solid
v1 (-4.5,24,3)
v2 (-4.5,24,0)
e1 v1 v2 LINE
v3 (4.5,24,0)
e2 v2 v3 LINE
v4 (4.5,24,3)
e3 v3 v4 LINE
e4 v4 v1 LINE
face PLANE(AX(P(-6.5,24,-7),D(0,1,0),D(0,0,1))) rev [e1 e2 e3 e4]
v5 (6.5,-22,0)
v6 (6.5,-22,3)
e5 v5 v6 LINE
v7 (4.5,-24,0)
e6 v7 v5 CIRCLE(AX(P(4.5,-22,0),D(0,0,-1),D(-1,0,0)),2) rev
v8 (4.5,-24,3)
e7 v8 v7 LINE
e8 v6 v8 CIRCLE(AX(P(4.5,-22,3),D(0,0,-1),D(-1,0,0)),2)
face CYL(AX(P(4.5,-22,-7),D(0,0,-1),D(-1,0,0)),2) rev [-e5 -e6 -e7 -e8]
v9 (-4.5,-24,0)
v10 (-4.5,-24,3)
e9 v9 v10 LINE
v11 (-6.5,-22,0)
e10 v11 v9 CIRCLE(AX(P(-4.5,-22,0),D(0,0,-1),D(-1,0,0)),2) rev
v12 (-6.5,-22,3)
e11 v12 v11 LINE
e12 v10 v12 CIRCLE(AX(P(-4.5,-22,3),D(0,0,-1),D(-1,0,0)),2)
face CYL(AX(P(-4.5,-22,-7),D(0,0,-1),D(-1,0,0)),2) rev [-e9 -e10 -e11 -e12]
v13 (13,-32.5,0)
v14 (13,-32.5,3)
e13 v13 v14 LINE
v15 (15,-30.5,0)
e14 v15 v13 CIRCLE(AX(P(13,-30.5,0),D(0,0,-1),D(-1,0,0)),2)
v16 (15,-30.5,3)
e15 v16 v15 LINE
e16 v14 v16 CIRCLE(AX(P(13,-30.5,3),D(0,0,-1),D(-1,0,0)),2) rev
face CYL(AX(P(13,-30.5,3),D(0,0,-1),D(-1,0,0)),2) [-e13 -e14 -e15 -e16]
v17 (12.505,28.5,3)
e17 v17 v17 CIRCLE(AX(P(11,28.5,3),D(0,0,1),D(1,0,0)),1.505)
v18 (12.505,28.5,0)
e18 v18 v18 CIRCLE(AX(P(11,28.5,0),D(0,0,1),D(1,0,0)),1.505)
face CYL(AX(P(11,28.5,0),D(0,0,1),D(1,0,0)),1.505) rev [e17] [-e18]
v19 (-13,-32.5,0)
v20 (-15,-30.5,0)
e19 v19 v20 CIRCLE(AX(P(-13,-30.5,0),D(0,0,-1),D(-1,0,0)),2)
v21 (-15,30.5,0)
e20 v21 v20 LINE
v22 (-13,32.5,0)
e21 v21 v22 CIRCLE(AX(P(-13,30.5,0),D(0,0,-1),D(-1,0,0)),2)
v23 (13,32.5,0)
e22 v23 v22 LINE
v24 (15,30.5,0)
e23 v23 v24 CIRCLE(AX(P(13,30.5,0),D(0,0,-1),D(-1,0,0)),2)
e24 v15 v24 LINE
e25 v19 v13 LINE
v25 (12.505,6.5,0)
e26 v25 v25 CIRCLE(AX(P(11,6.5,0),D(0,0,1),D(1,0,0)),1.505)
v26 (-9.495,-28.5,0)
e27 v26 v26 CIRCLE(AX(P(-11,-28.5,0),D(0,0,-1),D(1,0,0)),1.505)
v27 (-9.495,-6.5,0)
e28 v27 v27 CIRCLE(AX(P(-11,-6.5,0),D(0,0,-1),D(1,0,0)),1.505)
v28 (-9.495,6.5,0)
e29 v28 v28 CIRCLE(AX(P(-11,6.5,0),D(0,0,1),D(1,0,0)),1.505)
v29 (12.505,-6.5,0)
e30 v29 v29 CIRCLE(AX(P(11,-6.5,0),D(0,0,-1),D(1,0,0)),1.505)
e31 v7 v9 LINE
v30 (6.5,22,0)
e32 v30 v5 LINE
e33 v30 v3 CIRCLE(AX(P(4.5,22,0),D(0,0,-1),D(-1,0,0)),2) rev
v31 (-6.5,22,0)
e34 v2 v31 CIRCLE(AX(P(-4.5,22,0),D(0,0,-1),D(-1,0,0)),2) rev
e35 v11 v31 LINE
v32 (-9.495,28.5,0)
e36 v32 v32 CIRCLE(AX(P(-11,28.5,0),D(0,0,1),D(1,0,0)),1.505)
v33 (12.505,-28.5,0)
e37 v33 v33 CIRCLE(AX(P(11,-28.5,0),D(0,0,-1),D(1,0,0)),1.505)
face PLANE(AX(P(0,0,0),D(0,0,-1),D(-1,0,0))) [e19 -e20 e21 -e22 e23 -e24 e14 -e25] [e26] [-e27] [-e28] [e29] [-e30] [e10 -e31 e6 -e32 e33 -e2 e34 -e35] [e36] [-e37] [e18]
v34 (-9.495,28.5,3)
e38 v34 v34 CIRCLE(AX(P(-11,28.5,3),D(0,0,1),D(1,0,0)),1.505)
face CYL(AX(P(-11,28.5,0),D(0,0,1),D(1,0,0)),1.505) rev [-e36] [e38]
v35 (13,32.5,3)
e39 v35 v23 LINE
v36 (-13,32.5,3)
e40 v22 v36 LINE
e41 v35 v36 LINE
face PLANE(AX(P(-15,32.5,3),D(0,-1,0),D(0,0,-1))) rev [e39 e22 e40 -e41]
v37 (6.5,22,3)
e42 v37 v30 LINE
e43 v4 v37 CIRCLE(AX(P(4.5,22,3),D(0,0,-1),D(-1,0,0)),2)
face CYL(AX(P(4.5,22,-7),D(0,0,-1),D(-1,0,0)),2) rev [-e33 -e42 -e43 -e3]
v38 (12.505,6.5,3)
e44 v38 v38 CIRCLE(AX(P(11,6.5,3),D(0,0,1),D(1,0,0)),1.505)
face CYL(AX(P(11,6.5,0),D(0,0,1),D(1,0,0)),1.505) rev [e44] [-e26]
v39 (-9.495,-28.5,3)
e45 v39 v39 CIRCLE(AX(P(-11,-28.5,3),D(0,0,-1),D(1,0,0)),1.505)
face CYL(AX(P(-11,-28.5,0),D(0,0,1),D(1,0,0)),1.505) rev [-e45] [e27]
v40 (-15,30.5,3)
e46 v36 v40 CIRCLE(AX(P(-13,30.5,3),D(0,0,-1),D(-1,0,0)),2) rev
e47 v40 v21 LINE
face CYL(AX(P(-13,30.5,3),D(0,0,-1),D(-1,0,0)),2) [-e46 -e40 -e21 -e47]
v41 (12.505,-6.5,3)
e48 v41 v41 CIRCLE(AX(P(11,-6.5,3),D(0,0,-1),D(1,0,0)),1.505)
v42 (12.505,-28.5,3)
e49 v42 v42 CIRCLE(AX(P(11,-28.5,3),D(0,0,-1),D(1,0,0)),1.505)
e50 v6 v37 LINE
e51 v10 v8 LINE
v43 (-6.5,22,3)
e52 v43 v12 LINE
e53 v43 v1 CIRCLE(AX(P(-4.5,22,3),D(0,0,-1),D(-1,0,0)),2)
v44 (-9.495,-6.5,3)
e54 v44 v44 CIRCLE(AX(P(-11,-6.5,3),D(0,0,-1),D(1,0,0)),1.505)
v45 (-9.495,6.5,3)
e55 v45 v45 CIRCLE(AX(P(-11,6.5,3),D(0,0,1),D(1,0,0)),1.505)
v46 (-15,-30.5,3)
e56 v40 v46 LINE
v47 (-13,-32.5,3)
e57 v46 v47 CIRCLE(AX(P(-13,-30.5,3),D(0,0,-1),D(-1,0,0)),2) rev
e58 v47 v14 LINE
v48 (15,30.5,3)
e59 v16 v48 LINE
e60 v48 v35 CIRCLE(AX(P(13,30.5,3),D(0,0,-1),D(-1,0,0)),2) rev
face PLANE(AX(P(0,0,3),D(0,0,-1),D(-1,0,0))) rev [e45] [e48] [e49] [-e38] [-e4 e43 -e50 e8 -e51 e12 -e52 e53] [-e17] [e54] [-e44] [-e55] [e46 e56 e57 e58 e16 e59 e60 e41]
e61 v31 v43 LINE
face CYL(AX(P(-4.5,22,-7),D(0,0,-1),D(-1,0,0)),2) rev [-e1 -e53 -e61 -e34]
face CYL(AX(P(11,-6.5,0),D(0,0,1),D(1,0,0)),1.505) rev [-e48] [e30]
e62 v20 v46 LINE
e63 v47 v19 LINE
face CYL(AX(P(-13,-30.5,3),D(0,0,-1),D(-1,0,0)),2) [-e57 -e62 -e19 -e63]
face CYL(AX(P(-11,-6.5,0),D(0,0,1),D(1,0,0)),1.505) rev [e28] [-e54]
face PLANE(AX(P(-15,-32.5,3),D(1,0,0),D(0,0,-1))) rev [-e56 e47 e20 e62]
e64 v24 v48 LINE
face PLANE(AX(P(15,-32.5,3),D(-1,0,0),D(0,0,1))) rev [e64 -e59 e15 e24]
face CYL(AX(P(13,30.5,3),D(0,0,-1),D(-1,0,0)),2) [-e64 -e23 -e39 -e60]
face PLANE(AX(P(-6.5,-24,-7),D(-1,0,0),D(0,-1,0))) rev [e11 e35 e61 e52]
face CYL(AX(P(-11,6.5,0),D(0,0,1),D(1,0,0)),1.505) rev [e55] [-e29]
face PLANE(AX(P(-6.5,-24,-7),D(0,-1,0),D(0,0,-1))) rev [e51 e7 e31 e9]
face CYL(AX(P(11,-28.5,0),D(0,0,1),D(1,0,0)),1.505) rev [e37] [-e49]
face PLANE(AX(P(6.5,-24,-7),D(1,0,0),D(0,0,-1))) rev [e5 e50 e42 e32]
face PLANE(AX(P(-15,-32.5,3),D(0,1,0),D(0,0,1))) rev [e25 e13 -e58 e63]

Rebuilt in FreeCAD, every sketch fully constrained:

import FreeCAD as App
import Part
import Sketcher

V = App.Vector


def edges_at(feature, points):
    """Names of the edges that pass closest to the given points."""
    edges = feature.Shape.Edges
    near = lambda p: min(range(len(edges)), key=lambda i: edges[i].distToShape(Part.Vertex(*p))[0])
    return sorted({f"Edge{near(p) + 1}" for p in points})


def add_polygon(sketch, points):
    """Adds a closed chain of lines whose ends are joined by coincident constraints."""
    first, n = sketch.GeometryCount, len(points)
    for a, b in zip(points, points[1:] + points[:1]):
        sketch.addGeometry(Part.LineSegment(App.Vector(*a, 0), App.Vector(*b, 0)), False)
    for i in range(n):
        sketch.addConstraint(Sketcher.Constraint("Coincident", first + i, 2, first + (i + 1) % n, 1))

doc = App.newDocument("Part")
body = doc.addObject("PartDesign::Body", "Body")

# Sketch on XY plane
sketch1 = doc.addObject("Sketcher::SketchObject", "Sketch")
body.addObject(sketch1)
sketch1.AttachmentSupport = (doc.XY_Plane, [""])
sketch1.MapMode = "FlatFace"
add_polygon(sketch1, [(-15, 32), (-15, -32), (15, -32), (15, 32)])  # lines 0-3
sketch1.addConstraint([
    Sketcher.Constraint("Vertical", 0),
    Sketcher.Constraint("Horizontal", 1),
    Sketcher.Constraint("Vertical", 2),
    Sketcher.Constraint("Horizontal", 3),
    Sketcher.Constraint("Symmetric", 0, 2, 2, 2, -1, 1),
    Sketcher.Constraint("DistanceX", 1, 1, 1, 2, 30.0),
    Sketcher.Constraint("DistanceY", 0, 2, 0, 1, 65.0),
])
pad1 = doc.addObject("PartDesign::Pad", "Pad")
body.addObject(pad1)
pad1.Profile = sketch1
pad1.Length = 3

# Sketch on XY plane
sketch2 = doc.addObject("Sketcher::SketchObject", "Sketch001")
body.addObject(sketch2)
sketch2.AttachmentSupport = (doc.XY_Plane, [""])
sketch2.MapMode = "FlatFace"
sketch2.AttachmentOffset = App.Placement(V(0, 0, 3), App.Rotation())
sketch2.addGeometry([
    Part.Circle(V(-11, 28.5, 0), V(0, 0, 1), 1.5),
    Part.Circle(V(11, 28.5, 0), V(0, 0, 1), 1.5),
    Part.Circle(V(-11, 6.5, 0), V(0, 0, 1), 1.5),
    Part.Circle(V(11, 6.5, 0), V(0, 0, 1), 1.5),
], False)
sketch2.addConstraint([
    Sketcher.Constraint("Equal", 0, 1),
    Sketcher.Constraint("Equal", 1, 2),
    Sketcher.Constraint("Equal", 2, 3),
    Sketcher.Constraint("Symmetric", 0, 3, 1, 3, -2),
    Sketcher.Constraint("Symmetric", 2, 3, 3, 3, -2),
    Sketcher.Constraint("Vertical", 0, 3, 2, 3),
    Sketcher.Constraint("Diameter", 0, 3.01),
    Sketcher.Constraint("DistanceX", 0, 3, -1, 1, 11.0),
    Sketcher.Constraint("DistanceY", 2, 3, 0, 3, 22.0),
    Sketcher.Constraint("DistanceY", -1, 1, 0, 3, 28.5),
])
pocket1 = doc.addObject("PartDesign::Pocket", "Pocket")
body.addObject(pocket1)
pocket1.Profile = sketch2
pocket1.Length = 3
doc.recompute()

mirrored = doc.addObject("PartDesign::Mirrored", "Mirrored")
body.addObject(mirrored)
mirrored.Originals = [pocket1]
mirrored.MirrorPlane = (doc.XZ_Plane, [""])
body.Tip = mirrored
doc.recompute()

fillet = doc.addObject("PartDesign::Fillet", "Fillet")
body.addObject(fillet)
fillet.Base = (mirrored, edges_at(mirrored, [
    (15, -32.5, 1.5),
    (-15, -32.5, 1.5),
    (-15, 32.5, 1.5),
    (15, 32.5, 1.5),
]))
fillet.Radius = 2

# Sketch on XY plane
sketch3 = doc.addObject("Sketcher::SketchObject", "Sketch002")
body.addObject(sketch3)
sketch3.AttachmentSupport = (doc.XY_Plane, [""])
sketch3.MapMode = "FlatFace"
sketch3.AttachmentOffset = App.Placement(V(0, 0, 3), App.Rotation())
add_polygon(sketch3, [(-6, 24), (-6, -24), (6, -24), (6, 24)])  # lines 0-3
sketch3.addConstraint([
    Sketcher.Constraint("Vertical", 0),
    Sketcher.Constraint("Horizontal", 1),
    Sketcher.Constraint("Vertical", 2),
    Sketcher.Constraint("Horizontal", 3),
    Sketcher.Constraint("Symmetric", 0, 2, 2, 2, -1, 1),
    Sketcher.Constraint("DistanceX", 1, 1, 1, 2, 13.0),
    Sketcher.Constraint("DistanceY", 0, 2, 0, 1, 48.0),
])
pocket2 = doc.addObject("PartDesign::Pocket", "Pocket001")
body.addObject(pocket2)
pocket2.Profile = sketch3
pocket2.Length = 10
doc.recompute()

fillet2 = doc.addObject("PartDesign::Fillet", "Fillet001")
body.addObject(fillet2)
fillet2.Base = (pocket2, edges_at(pocket2, [
    (6.5, 24, 1.5),
    (6.5, -24, 1.5),
    (-6.5, -24, 1.5),
    (-6.5, 24, 1.5),
]))
fillet2.Radius = 2

doc.recompute()
